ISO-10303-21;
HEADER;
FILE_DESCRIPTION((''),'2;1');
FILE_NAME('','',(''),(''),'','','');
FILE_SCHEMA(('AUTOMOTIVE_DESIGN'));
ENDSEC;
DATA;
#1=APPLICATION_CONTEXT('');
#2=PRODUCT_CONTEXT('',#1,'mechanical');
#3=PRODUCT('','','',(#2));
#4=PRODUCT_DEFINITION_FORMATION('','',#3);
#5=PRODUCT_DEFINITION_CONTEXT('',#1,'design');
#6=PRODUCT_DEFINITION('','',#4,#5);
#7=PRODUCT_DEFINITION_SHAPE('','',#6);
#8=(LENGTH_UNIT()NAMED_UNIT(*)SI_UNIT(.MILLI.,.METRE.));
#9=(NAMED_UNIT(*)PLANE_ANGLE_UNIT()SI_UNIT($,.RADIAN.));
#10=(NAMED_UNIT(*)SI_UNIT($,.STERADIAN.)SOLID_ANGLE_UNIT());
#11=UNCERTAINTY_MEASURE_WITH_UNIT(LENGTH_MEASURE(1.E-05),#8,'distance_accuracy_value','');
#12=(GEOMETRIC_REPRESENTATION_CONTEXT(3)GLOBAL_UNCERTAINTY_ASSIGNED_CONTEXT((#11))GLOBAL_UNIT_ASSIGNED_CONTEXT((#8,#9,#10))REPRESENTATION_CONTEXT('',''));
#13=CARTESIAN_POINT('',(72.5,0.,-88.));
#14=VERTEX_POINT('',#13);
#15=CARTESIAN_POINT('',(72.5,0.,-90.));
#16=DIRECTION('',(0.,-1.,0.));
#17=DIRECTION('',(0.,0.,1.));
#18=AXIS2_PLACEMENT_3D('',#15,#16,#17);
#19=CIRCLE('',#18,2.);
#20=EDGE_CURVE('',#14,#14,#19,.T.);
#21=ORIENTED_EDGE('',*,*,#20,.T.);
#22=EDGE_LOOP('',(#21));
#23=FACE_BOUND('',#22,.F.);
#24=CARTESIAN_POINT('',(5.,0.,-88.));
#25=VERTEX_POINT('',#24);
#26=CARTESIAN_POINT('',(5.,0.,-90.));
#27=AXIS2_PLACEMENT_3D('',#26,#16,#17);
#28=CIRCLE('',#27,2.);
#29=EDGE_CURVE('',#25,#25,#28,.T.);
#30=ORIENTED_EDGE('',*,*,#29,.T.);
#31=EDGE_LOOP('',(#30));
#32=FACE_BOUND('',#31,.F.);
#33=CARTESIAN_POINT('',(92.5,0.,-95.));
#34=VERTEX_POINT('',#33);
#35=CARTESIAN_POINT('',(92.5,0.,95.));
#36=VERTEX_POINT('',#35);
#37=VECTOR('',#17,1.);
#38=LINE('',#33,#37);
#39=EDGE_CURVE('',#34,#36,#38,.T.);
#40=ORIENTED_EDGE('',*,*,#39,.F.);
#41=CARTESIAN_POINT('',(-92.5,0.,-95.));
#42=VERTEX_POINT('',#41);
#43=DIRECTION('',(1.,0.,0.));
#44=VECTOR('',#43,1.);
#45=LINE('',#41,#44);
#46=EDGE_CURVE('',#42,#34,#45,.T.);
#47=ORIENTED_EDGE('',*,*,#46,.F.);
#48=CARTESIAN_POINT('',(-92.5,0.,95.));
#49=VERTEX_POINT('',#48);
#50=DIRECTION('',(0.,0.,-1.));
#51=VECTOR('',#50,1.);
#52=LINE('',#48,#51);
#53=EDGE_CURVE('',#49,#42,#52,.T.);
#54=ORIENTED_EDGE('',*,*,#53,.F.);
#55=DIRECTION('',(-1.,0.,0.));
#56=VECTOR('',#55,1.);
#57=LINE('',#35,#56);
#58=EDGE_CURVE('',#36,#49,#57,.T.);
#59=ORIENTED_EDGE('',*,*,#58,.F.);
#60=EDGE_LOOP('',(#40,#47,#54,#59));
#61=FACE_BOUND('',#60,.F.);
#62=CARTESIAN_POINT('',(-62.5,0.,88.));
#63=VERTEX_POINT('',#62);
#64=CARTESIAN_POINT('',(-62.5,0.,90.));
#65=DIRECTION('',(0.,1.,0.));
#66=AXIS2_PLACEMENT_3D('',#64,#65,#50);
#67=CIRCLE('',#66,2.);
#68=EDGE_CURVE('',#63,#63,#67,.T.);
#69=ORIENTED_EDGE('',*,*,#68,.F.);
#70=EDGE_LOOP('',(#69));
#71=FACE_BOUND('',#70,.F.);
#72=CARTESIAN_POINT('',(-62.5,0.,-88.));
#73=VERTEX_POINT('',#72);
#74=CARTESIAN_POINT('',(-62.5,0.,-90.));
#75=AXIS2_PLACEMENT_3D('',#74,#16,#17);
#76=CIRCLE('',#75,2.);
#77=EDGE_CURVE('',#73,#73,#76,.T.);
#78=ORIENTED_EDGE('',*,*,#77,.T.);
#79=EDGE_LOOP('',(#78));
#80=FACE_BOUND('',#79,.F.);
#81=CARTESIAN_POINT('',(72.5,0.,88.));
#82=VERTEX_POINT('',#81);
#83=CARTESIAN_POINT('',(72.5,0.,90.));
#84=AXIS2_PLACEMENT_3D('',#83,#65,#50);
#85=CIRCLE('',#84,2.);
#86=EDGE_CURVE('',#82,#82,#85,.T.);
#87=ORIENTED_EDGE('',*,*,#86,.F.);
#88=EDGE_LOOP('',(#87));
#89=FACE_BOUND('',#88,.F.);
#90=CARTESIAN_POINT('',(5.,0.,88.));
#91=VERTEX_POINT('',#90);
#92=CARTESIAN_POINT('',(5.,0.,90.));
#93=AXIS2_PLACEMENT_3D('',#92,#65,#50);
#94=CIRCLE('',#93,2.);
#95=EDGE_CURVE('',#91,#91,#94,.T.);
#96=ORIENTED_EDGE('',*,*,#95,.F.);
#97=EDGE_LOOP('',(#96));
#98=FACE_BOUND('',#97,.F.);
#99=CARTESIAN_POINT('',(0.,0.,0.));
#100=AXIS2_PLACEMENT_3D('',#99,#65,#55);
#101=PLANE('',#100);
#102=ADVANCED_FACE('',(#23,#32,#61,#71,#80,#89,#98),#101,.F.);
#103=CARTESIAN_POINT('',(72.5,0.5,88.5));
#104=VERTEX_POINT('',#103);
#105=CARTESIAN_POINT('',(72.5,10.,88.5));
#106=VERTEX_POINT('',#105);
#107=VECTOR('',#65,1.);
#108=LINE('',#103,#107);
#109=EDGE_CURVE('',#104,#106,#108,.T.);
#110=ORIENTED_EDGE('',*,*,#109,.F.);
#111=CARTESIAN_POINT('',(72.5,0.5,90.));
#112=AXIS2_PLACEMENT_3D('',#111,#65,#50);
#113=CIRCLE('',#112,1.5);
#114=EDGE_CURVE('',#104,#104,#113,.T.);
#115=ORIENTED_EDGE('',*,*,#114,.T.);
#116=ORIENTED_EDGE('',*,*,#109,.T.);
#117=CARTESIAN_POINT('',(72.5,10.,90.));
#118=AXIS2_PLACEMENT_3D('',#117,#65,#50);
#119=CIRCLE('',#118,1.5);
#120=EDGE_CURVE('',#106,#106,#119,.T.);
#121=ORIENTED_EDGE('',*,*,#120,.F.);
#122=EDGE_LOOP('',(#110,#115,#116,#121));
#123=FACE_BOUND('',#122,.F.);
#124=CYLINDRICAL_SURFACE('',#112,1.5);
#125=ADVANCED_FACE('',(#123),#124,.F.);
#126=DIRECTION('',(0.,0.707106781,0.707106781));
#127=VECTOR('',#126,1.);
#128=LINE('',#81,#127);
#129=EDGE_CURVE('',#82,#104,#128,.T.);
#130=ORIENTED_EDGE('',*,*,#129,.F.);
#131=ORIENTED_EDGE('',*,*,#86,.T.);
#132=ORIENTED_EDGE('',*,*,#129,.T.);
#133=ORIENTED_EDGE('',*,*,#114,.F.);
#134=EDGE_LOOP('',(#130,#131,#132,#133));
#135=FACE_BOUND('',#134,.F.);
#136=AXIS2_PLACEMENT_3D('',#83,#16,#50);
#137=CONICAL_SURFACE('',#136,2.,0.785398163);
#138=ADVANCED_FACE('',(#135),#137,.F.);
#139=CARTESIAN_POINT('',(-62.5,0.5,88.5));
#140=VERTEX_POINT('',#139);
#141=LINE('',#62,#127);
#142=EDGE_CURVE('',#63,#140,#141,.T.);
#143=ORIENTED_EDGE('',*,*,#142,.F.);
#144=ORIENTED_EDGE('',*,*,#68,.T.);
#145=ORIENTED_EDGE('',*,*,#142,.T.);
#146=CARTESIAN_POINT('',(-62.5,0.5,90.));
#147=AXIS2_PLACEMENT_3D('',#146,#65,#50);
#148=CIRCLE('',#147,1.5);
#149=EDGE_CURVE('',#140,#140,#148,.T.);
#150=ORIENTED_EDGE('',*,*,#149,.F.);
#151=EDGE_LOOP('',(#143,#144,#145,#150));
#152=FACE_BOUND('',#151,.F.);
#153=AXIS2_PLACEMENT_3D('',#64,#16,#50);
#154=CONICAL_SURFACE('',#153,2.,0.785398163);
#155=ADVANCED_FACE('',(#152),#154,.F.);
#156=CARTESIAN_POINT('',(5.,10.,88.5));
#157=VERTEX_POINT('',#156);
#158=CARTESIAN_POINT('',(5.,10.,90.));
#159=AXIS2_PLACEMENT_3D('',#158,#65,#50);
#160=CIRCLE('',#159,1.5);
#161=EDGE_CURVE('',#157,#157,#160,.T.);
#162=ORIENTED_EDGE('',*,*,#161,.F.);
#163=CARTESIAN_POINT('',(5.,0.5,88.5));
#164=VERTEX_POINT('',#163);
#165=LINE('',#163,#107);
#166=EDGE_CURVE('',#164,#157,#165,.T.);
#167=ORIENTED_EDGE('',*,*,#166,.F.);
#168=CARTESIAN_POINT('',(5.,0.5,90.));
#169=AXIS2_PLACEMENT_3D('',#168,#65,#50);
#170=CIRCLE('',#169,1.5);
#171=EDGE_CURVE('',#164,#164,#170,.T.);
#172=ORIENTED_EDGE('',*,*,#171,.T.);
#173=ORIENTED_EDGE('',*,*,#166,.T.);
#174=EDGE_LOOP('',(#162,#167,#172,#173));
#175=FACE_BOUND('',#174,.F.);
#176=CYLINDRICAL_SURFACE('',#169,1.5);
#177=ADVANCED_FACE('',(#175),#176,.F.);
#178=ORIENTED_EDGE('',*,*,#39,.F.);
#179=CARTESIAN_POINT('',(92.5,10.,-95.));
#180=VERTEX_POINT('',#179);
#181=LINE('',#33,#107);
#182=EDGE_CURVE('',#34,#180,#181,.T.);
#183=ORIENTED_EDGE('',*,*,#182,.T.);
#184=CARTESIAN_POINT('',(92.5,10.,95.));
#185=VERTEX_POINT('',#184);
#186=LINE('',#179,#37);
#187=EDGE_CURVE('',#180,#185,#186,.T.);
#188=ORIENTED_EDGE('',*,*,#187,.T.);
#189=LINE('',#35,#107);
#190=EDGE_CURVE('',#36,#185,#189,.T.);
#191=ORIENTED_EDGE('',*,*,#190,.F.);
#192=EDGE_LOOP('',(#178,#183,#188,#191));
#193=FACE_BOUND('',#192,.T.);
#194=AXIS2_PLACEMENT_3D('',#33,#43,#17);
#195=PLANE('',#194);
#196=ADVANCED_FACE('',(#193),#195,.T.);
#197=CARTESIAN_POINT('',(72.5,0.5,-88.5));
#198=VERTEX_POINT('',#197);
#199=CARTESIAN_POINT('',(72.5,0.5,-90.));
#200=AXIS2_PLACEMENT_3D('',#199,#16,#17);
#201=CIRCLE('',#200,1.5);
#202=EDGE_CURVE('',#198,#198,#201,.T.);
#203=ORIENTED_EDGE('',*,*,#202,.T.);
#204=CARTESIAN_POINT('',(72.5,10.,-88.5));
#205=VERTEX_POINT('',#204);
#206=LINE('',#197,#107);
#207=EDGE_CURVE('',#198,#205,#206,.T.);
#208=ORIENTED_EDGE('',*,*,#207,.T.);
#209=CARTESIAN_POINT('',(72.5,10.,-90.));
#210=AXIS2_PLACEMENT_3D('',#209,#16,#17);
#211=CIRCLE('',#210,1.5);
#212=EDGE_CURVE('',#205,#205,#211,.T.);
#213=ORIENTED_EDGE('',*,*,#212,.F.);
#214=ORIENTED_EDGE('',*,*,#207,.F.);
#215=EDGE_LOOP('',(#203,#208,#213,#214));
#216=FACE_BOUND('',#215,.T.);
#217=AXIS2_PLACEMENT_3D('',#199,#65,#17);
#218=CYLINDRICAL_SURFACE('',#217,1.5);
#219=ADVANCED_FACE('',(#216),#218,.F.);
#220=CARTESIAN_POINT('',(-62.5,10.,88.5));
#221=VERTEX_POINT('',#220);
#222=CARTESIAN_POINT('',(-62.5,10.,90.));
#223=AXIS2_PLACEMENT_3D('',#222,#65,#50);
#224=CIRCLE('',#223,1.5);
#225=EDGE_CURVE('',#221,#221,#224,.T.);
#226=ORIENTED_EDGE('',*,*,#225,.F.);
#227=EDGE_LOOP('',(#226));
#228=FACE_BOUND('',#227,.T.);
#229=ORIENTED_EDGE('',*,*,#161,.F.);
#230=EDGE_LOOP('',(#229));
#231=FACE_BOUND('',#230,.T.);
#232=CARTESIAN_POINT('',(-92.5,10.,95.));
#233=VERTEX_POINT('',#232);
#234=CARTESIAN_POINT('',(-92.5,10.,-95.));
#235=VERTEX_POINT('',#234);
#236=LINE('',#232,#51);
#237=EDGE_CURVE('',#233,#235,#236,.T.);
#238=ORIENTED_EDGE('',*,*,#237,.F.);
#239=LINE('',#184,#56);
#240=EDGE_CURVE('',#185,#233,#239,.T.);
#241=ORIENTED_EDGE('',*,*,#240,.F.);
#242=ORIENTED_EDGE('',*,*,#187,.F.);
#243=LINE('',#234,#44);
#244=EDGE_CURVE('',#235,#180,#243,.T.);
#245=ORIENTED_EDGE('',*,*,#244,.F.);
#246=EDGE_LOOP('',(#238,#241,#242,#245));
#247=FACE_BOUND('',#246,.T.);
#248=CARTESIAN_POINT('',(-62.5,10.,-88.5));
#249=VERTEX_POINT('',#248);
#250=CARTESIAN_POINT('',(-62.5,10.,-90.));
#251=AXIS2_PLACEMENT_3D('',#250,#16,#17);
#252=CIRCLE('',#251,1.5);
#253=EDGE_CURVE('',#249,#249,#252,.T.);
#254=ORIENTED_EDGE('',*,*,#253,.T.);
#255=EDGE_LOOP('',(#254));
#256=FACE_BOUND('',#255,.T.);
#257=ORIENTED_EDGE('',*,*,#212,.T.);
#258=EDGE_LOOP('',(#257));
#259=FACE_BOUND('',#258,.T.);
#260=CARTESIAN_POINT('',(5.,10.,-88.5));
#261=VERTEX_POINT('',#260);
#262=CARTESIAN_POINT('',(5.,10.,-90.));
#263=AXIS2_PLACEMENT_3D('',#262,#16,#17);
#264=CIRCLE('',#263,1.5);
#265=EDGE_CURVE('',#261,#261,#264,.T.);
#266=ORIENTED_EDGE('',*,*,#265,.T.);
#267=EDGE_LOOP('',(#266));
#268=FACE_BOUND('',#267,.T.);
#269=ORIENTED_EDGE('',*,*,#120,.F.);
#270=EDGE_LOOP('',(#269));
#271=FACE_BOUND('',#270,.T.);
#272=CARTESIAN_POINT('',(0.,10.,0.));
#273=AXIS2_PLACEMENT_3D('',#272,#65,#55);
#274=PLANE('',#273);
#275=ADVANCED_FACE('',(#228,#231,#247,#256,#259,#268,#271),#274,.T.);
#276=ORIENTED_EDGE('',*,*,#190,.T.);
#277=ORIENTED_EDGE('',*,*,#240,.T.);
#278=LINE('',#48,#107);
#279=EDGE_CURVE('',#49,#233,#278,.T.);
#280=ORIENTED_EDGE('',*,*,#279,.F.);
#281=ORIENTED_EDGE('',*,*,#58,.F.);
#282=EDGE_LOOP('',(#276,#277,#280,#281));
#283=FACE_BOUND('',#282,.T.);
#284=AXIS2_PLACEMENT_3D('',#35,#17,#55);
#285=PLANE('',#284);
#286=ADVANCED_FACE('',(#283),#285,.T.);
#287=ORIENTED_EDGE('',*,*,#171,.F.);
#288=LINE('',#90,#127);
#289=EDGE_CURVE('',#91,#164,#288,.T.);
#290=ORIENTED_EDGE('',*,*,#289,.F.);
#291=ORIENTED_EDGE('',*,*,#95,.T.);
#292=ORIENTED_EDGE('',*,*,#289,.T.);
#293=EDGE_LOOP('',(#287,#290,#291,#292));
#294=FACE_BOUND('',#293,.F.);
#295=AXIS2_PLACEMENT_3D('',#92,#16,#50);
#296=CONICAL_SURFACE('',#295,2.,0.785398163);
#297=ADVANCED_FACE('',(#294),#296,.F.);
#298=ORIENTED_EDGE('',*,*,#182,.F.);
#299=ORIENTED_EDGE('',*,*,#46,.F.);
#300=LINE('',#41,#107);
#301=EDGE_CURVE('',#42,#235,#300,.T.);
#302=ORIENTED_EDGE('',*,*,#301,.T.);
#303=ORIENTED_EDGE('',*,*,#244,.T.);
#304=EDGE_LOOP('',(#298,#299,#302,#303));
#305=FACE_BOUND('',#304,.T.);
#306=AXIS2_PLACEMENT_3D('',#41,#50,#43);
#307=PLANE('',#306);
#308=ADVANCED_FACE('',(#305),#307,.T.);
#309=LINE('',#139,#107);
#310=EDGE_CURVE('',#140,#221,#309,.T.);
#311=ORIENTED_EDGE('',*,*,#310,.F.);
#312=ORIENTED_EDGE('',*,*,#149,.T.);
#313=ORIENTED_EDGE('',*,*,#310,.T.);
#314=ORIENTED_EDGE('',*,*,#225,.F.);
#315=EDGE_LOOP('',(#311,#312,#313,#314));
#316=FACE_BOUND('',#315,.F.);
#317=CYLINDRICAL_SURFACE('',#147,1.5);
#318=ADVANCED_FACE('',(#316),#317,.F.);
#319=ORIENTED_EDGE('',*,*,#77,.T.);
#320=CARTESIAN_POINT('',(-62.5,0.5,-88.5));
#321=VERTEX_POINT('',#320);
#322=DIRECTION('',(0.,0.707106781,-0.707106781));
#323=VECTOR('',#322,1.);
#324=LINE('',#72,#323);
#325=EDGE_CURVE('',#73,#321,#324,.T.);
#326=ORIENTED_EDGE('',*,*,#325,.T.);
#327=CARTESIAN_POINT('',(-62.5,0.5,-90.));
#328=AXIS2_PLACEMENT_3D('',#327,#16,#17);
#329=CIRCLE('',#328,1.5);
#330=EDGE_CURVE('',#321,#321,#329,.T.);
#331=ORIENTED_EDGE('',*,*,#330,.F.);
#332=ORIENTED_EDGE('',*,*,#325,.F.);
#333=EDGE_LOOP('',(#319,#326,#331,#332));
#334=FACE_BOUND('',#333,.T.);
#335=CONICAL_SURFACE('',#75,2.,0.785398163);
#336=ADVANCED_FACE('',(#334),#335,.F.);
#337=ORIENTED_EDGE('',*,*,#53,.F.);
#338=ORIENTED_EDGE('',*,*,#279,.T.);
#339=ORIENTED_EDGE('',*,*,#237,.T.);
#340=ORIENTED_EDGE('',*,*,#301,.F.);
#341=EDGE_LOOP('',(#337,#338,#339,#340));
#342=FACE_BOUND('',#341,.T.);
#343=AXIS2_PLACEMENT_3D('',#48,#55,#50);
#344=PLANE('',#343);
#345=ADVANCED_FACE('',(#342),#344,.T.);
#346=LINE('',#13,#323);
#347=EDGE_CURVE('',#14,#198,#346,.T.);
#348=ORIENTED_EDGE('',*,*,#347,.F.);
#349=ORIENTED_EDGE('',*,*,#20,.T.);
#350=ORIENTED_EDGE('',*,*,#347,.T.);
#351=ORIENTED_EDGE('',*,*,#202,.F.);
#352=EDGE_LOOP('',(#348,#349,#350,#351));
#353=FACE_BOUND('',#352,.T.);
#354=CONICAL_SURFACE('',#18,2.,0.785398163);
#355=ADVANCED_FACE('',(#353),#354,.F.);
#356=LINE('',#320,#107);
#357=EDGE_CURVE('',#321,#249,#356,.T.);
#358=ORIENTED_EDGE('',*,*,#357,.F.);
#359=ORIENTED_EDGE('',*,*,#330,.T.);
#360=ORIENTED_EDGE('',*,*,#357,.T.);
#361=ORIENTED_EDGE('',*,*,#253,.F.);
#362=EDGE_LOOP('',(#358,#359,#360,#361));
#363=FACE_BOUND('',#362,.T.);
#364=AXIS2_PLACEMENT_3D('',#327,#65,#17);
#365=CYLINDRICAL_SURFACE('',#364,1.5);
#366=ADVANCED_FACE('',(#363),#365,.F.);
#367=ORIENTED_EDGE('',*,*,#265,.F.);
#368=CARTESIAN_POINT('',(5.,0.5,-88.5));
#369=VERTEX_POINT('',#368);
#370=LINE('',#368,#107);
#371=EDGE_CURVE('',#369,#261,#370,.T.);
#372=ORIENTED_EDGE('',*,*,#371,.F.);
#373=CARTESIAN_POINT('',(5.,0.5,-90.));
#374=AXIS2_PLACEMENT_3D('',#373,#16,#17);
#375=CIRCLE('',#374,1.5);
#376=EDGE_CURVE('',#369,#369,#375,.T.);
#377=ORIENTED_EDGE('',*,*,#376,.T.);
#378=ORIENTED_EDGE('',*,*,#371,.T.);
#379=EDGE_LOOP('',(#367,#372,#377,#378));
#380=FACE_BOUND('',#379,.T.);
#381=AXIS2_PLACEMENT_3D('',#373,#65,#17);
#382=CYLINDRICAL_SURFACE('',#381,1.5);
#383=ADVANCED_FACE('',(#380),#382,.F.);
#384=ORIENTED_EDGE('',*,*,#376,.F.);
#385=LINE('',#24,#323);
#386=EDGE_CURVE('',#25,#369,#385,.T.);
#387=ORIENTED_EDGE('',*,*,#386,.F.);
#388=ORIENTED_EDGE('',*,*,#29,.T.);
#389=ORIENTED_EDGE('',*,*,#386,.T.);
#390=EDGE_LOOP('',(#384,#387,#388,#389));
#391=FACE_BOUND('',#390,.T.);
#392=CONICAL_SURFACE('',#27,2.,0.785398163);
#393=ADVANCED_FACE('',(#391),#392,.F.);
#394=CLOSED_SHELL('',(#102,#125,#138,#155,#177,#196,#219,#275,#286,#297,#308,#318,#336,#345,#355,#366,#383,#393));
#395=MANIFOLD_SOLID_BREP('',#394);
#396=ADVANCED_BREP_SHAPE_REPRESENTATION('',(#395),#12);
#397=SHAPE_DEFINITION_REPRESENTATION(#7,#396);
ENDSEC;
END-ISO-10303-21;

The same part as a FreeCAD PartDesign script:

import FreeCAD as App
import Part
import Sketcher

V = App.Vector
Q = App.Units.Quantity


def add_polygon(sketch, points):
    """Adds a closed chain of lines whose ends are joined by coincident constraints."""
    first, n = sketch.GeometryCount, len(points)
    for a, b in zip(points, points[1:] + points[:1]):
        sketch.addGeometry(Part.LineSegment(App.Vector(*a, 0), App.Vector(*b, 0)), False)
    for i in range(n):
        sketch.addConstraint(Sketcher.Constraint("Coincident", first + i, 2, first + (i + 1) % n, 1))

doc = App.newDocument("Part")
body = doc.addObject("PartDesign::Body", "Body")

# Sketch on XZ plane
sketch1 = body.newObject("Sketcher::SketchObject", "Sketch")
sketch1.AttachmentSupport = (doc.getObject("XZ_Plane"), [""])
sketch1.MapMode = "FlatFace"
add_polygon(sketch1, [(-92, 95), (92, 95), (92, -95), (-92, -95)])  # lines 0-3
sketch1.addConstraint(Sketcher.Constraint("Horizontal", 0))
sketch1.addConstraint(Sketcher.Constraint("Vertical", 1))
sketch1.addConstraint(Sketcher.Constraint("Horizontal", 2))
sketch1.addConstraint(Sketcher.Constraint("Vertical", 3))
sketch1.addConstraint(Sketcher.Constraint("Symmetric", 0, 2, 2, 2, -1, 1))
sketch1.addConstraint(Sketcher.Constraint("DistanceX", 0, 1, 0, 2, Q("185 mm")))
sketch1.addConstraint(Sketcher.Constraint("DistanceY", 1, 2, 1, 1, Q("190 mm")))
pad1 = body.newObject("PartDesign::Pad", "Pad")
pad1.Profile = sketch1
pad1.Length = 10
pad1.Reversed = True

# Sketch on XZ plane
sketch2 = body.newObject("Sketcher::SketchObject", "Sketch001")
sketch2.AttachmentSupport = (doc.getObject("XZ_Plane"), [""])
sketch2.MapMode = "FlatFace"
sketch2.addGeometry(Part.Circle(V(-62.5, 90, 0), V(0, 0, 1), 1.5), False)
sketch2.addGeometry(Part.Circle(V(72.5, 90, 0), V(0, 0, 1), 1.5), False)
sketch2.addGeometry(Part.Circle(V(5, 90, 0), V(0, 0, 1), 1.5), False)
sketch2.addConstraint(Sketcher.Constraint("Equal", 0, 1))
sketch2.addConstraint(Sketcher.Constraint("Equal", 1, 2))
sketch2.addConstraint(Sketcher.Constraint("Horizontal", 0, 3, 1, 3))
sketch2.addConstraint(Sketcher.Constraint("Horizontal", 1, 3, 2, 3))
sketch2.addConstraint(Sketcher.Constraint("Diameter", 0, Q("3 mm")))
sketch2.addConstraint(Sketcher.Constraint("DistanceY", -1, 1, 0, 3, Q("90 mm")))
sketch2.addConstraint(Sketcher.Constraint("DistanceX", -1, 1, 2, 3, Q("5 mm")))
sketch2.addConstraint(Sketcher.Constraint("DistanceX", 0, 3, 1, 3, Q("135 mm")))
sketch2.addConstraint(Sketcher.Constraint("DistanceX", 0, 3, -1, 1, Q("62.5 mm")))
doc.recompute()
hole = body.newObject("PartDesign::Hole", "Hole")
hole.Profile = sketch2
hole.ThreadType = "None"
hole.Diameter = 3
hole.DepthType = "Dimension"
hole.Depth = 10
hole.DrillPoint = "Flat"
hole.HoleCutType = "Countersink"
hole.HoleCutDiameter = 4
hole.HoleCutCountersinkAngle = 90
doc.recompute()

mirrored = body.newObject("PartDesign::Mirrored", "Mirrored")
mirrored.Originals = [hole]
mirrored.MirrorPlane = (doc.getObject("XY_Plane"), [""])
body.Tip = mirrored

doc.recompute()
